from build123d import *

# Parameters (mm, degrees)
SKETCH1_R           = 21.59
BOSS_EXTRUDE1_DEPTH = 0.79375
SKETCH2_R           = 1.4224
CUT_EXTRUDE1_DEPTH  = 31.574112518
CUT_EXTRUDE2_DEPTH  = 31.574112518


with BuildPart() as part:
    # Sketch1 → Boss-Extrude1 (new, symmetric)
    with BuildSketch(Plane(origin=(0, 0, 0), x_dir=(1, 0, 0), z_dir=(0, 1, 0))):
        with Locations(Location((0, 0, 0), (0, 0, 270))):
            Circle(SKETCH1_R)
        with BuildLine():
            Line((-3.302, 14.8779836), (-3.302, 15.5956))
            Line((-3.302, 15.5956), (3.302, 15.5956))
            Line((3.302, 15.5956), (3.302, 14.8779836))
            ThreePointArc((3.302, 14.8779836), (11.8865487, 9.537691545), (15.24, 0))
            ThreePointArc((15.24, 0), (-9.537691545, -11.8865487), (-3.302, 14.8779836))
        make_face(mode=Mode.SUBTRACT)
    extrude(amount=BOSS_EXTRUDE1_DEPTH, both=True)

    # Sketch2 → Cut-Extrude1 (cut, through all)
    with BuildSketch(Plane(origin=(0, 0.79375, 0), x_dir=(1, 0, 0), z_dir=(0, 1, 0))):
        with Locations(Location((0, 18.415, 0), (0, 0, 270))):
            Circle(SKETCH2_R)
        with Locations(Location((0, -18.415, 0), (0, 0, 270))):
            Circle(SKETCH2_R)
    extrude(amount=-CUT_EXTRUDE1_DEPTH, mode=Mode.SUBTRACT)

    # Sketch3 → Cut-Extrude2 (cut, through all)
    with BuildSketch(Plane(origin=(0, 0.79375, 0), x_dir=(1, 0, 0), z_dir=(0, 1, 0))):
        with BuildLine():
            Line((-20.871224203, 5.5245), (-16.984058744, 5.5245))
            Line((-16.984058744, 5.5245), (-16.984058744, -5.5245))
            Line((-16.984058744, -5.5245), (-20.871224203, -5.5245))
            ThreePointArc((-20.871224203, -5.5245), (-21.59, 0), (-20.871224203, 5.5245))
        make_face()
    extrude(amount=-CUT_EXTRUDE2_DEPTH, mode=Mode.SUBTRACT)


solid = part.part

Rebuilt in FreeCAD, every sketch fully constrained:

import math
import FreeCAD as App
import Part
import Sketcher
Q = App.Units.Quantity

doc = App.newDocument("Part")
params = doc.addObject("Spreadsheet::Sheet", "Params")
for row, (alias, value) in enumerate([
    ("sketch1_diameter", "1.7 in"),
    ("sketch1_radius", "0.6 in"),
    ("sketch1_width", "0.26 in"),
    ("pad1_length", "0.0625 in"),
    ("sketch2_diameter", "0.112 in"),
    ("sketch3_radius", "0.85 in"),
    ("sketch3_height", "0.435 in"),
], start=1):
    params.set(f"A{row}", alias)
    params.set(f"B{row}", "=" + value)
    params.setAlias(f"B{row}", alias)

body = doc.addObject("PartDesign::Body", "Body")

# Sketch on XZ plane
sketch1 = body.newObject("Sketcher::SketchObject", "Sketch")
sketch1.AttachmentSupport = (doc.getObject("XZ_Plane"), [""])
sketch1.MapMode = "FlatFace"
sketch1.addGeometry([
    Part.Circle(App.Vector(0, 0, 0), App.Vector(0, 0, 1), 21.59),  # 0
    Part.ArcOfCircle(Part.Circle(App.Vector(0, 0, 0), App.Vector(0, 0, 1), 15.24), math.radians(0), math.radians(257.486675)),  # 1
    Part.LineSegment(App.Vector(-3.302, -14.877984, 0), App.Vector(-3.302, -15.5956, 0)),  # 2
    Part.LineSegment(App.Vector(-3.302, -15.5956, 0), App.Vector(3.302, -15.5956, 0)),  # 3
    Part.LineSegment(App.Vector(3.302, -15.5956, 0), App.Vector(3.302, -14.877984, 0)),  # 4
    Part.ArcOfCircle(Part.Circle(App.Vector(0, 0, 0), App.Vector(0, 0, 1), 15.24), math.radians(-77.486675), math.radians(0)),  # 5
], False)
sketch1.addConstraint([
    Sketcher.Constraint("Coincident", 1, 2, 2, 1),
    Sketcher.Constraint("Coincident", 2, 2, 3, 1),
    Sketcher.Constraint("Coincident", 3, 2, 4, 1),
    Sketcher.Constraint("Coincident", 4, 2, 5, 1),
    Sketcher.Constraint("Tangent", 5, 2, 1, 1),
    Sketcher.Constraint("Vertical", 2),
    Sketcher.Constraint("Horizontal", 3),
    Sketcher.Constraint("Vertical", 4),
    Sketcher.Constraint("Coincident", 0, 3, -1, 1),
    Sketcher.Constraint("Coincident", 1, 3, -1, 1),
    Sketcher.Constraint("Equal", 1, 5),
    Sketcher.Constraint("PointOnObject", 5, 2, -1),
    Sketcher.Constraint("Horizontal", 1, 2, 4, 2),
    Sketcher.Constraint("Diameter", 0, Q("1.7 in")),
    Sketcher.Constraint("Radius", 1, Q("0.6 in")),
    Sketcher.Constraint("DistanceX", 3, 1, 3, 2, Q("0.26 in")),
    Sketcher.Constraint("DistanceY", 2, 2, -1, 1, Q("0.614 in")),
])
sketch1.setExpression("Constraints[13]", "Params.sketch1_diameter")
sketch1.setExpression("Constraints[14]", "Params.sketch1_radius")
sketch1.setExpression("Constraints[15]", "Params.sketch1_width")
pad1 = body.newObject("PartDesign::Pad", "Pad")
pad1.Profile = sketch1
pad1.setExpression("Length", "Params.pad1_length")
pad1.Midplane = True

# Sketch on XZ plane
sketch2 = body.newObject("Sketcher::SketchObject", "Sketch001")
sketch2.AttachmentSupport = (doc.getObject("XZ_Plane"), [""])
sketch2.MapMode = "FlatFace"
sketch2.AttachmentOffset = App.Placement(App.Vector(0, 0, -0.03125 * 25.4), App.Rotation())
sketch2.addGeometry([
    Part.Circle(App.Vector(0, -18.415, 0), App.Vector(0, 0, 1), 1.4224),
    Part.Circle(App.Vector(0, 18.415, 0), App.Vector(0, 0, 1), 1.4224),
], False)
sketch2.addConstraint([
    Sketcher.Constraint("Equal", 0, 1),
    Sketcher.Constraint("Symmetric", 0, 3, 1, 3, -1, 1),
    Sketcher.Constraint("PointOnObject", 0, 3, -2),
    Sketcher.Constraint("Diameter", 0, Q("0.112 in")),
    Sketcher.Constraint("DistanceY", 0, 3, 1, 3, Q("1.45 in")),
])
sketch2.setExpression("Constraints[3]", "Params.sketch2_diameter")
pocket1 = body.newObject("PartDesign::Pocket", "Pocket")
pocket1.Profile = sketch2
pocket1.Type = "ThroughAll"
pocket1.Reversed = True

# Sketch on XZ plane
sketch3 = body.newObject("Sketcher::SketchObject", "Sketch002")
sketch3.AttachmentSupport = (doc.getObject("XZ_Plane"), [""])
sketch3.MapMode = "FlatFace"
sketch3.AttachmentOffset = App.Placement(App.Vector(0, 0, -0.03125 * 25.4), App.Rotation())
sketch3.addGeometry([
    Part.LineSegment(App.Vector(-16.984059, -5.5245, 0), App.Vector(-20.871224, -5.5245, 0)),
    Part.ArcOfCircle(Part.Circle(App.Vector(0, 0, 0), App.Vector(0, 0, 1), 21.59), math.radians(165.174125), math.radians(194.825875)),
    Part.LineSegment(App.Vector(-20.871224, 5.5245, 0), App.Vector(-16.984059, 5.5245, 0)),
    Part.LineSegment(App.Vector(-16.984059, 5.5245, 0), App.Vector(-16.984059, -5.5245, 0)),
], False)
sketch3.addConstraint([
    Sketcher.Constraint("Coincident", 0, 2, 1, 2),
    Sketcher.Constraint("Coincident", 1, 1, 2, 1),
    Sketcher.Constraint("Coincident", 2, 2, 3, 1),
    Sketcher.Constraint("Coincident", 3, 2, 0, 1),
    Sketcher.Constraint("Horizontal", 0),
    Sketcher.Constraint("Horizontal", 2),
    Sketcher.Constraint("Vertical", 3),
    Sketcher.Constraint("Coincident", 1, 3, -1, 1),
    Sketcher.Constraint("Vertical", 0, 2, 1, 1),
    Sketcher.Constraint("Radius", 1, Q("0.85 in")),
    Sketcher.Constraint("DistanceY", 3, 2, 3, 1, Q("0.435 in")),
    Sketcher.Constraint("DistanceX", 0, 2, 0, 1, 3.887165),
])
sketch3.setExpression("Constraints[9]", "Params.sketch3_radius")
sketch3.setExpression("Constraints[10]", "Params.sketch3_height")
pocket2 = body.newObject("PartDesign::Pocket", "Pocket001")
pocket2.Profile = sketch3
pocket2.Type = "ThroughAll"
pocket2.Reversed = True

doc.recompute()
